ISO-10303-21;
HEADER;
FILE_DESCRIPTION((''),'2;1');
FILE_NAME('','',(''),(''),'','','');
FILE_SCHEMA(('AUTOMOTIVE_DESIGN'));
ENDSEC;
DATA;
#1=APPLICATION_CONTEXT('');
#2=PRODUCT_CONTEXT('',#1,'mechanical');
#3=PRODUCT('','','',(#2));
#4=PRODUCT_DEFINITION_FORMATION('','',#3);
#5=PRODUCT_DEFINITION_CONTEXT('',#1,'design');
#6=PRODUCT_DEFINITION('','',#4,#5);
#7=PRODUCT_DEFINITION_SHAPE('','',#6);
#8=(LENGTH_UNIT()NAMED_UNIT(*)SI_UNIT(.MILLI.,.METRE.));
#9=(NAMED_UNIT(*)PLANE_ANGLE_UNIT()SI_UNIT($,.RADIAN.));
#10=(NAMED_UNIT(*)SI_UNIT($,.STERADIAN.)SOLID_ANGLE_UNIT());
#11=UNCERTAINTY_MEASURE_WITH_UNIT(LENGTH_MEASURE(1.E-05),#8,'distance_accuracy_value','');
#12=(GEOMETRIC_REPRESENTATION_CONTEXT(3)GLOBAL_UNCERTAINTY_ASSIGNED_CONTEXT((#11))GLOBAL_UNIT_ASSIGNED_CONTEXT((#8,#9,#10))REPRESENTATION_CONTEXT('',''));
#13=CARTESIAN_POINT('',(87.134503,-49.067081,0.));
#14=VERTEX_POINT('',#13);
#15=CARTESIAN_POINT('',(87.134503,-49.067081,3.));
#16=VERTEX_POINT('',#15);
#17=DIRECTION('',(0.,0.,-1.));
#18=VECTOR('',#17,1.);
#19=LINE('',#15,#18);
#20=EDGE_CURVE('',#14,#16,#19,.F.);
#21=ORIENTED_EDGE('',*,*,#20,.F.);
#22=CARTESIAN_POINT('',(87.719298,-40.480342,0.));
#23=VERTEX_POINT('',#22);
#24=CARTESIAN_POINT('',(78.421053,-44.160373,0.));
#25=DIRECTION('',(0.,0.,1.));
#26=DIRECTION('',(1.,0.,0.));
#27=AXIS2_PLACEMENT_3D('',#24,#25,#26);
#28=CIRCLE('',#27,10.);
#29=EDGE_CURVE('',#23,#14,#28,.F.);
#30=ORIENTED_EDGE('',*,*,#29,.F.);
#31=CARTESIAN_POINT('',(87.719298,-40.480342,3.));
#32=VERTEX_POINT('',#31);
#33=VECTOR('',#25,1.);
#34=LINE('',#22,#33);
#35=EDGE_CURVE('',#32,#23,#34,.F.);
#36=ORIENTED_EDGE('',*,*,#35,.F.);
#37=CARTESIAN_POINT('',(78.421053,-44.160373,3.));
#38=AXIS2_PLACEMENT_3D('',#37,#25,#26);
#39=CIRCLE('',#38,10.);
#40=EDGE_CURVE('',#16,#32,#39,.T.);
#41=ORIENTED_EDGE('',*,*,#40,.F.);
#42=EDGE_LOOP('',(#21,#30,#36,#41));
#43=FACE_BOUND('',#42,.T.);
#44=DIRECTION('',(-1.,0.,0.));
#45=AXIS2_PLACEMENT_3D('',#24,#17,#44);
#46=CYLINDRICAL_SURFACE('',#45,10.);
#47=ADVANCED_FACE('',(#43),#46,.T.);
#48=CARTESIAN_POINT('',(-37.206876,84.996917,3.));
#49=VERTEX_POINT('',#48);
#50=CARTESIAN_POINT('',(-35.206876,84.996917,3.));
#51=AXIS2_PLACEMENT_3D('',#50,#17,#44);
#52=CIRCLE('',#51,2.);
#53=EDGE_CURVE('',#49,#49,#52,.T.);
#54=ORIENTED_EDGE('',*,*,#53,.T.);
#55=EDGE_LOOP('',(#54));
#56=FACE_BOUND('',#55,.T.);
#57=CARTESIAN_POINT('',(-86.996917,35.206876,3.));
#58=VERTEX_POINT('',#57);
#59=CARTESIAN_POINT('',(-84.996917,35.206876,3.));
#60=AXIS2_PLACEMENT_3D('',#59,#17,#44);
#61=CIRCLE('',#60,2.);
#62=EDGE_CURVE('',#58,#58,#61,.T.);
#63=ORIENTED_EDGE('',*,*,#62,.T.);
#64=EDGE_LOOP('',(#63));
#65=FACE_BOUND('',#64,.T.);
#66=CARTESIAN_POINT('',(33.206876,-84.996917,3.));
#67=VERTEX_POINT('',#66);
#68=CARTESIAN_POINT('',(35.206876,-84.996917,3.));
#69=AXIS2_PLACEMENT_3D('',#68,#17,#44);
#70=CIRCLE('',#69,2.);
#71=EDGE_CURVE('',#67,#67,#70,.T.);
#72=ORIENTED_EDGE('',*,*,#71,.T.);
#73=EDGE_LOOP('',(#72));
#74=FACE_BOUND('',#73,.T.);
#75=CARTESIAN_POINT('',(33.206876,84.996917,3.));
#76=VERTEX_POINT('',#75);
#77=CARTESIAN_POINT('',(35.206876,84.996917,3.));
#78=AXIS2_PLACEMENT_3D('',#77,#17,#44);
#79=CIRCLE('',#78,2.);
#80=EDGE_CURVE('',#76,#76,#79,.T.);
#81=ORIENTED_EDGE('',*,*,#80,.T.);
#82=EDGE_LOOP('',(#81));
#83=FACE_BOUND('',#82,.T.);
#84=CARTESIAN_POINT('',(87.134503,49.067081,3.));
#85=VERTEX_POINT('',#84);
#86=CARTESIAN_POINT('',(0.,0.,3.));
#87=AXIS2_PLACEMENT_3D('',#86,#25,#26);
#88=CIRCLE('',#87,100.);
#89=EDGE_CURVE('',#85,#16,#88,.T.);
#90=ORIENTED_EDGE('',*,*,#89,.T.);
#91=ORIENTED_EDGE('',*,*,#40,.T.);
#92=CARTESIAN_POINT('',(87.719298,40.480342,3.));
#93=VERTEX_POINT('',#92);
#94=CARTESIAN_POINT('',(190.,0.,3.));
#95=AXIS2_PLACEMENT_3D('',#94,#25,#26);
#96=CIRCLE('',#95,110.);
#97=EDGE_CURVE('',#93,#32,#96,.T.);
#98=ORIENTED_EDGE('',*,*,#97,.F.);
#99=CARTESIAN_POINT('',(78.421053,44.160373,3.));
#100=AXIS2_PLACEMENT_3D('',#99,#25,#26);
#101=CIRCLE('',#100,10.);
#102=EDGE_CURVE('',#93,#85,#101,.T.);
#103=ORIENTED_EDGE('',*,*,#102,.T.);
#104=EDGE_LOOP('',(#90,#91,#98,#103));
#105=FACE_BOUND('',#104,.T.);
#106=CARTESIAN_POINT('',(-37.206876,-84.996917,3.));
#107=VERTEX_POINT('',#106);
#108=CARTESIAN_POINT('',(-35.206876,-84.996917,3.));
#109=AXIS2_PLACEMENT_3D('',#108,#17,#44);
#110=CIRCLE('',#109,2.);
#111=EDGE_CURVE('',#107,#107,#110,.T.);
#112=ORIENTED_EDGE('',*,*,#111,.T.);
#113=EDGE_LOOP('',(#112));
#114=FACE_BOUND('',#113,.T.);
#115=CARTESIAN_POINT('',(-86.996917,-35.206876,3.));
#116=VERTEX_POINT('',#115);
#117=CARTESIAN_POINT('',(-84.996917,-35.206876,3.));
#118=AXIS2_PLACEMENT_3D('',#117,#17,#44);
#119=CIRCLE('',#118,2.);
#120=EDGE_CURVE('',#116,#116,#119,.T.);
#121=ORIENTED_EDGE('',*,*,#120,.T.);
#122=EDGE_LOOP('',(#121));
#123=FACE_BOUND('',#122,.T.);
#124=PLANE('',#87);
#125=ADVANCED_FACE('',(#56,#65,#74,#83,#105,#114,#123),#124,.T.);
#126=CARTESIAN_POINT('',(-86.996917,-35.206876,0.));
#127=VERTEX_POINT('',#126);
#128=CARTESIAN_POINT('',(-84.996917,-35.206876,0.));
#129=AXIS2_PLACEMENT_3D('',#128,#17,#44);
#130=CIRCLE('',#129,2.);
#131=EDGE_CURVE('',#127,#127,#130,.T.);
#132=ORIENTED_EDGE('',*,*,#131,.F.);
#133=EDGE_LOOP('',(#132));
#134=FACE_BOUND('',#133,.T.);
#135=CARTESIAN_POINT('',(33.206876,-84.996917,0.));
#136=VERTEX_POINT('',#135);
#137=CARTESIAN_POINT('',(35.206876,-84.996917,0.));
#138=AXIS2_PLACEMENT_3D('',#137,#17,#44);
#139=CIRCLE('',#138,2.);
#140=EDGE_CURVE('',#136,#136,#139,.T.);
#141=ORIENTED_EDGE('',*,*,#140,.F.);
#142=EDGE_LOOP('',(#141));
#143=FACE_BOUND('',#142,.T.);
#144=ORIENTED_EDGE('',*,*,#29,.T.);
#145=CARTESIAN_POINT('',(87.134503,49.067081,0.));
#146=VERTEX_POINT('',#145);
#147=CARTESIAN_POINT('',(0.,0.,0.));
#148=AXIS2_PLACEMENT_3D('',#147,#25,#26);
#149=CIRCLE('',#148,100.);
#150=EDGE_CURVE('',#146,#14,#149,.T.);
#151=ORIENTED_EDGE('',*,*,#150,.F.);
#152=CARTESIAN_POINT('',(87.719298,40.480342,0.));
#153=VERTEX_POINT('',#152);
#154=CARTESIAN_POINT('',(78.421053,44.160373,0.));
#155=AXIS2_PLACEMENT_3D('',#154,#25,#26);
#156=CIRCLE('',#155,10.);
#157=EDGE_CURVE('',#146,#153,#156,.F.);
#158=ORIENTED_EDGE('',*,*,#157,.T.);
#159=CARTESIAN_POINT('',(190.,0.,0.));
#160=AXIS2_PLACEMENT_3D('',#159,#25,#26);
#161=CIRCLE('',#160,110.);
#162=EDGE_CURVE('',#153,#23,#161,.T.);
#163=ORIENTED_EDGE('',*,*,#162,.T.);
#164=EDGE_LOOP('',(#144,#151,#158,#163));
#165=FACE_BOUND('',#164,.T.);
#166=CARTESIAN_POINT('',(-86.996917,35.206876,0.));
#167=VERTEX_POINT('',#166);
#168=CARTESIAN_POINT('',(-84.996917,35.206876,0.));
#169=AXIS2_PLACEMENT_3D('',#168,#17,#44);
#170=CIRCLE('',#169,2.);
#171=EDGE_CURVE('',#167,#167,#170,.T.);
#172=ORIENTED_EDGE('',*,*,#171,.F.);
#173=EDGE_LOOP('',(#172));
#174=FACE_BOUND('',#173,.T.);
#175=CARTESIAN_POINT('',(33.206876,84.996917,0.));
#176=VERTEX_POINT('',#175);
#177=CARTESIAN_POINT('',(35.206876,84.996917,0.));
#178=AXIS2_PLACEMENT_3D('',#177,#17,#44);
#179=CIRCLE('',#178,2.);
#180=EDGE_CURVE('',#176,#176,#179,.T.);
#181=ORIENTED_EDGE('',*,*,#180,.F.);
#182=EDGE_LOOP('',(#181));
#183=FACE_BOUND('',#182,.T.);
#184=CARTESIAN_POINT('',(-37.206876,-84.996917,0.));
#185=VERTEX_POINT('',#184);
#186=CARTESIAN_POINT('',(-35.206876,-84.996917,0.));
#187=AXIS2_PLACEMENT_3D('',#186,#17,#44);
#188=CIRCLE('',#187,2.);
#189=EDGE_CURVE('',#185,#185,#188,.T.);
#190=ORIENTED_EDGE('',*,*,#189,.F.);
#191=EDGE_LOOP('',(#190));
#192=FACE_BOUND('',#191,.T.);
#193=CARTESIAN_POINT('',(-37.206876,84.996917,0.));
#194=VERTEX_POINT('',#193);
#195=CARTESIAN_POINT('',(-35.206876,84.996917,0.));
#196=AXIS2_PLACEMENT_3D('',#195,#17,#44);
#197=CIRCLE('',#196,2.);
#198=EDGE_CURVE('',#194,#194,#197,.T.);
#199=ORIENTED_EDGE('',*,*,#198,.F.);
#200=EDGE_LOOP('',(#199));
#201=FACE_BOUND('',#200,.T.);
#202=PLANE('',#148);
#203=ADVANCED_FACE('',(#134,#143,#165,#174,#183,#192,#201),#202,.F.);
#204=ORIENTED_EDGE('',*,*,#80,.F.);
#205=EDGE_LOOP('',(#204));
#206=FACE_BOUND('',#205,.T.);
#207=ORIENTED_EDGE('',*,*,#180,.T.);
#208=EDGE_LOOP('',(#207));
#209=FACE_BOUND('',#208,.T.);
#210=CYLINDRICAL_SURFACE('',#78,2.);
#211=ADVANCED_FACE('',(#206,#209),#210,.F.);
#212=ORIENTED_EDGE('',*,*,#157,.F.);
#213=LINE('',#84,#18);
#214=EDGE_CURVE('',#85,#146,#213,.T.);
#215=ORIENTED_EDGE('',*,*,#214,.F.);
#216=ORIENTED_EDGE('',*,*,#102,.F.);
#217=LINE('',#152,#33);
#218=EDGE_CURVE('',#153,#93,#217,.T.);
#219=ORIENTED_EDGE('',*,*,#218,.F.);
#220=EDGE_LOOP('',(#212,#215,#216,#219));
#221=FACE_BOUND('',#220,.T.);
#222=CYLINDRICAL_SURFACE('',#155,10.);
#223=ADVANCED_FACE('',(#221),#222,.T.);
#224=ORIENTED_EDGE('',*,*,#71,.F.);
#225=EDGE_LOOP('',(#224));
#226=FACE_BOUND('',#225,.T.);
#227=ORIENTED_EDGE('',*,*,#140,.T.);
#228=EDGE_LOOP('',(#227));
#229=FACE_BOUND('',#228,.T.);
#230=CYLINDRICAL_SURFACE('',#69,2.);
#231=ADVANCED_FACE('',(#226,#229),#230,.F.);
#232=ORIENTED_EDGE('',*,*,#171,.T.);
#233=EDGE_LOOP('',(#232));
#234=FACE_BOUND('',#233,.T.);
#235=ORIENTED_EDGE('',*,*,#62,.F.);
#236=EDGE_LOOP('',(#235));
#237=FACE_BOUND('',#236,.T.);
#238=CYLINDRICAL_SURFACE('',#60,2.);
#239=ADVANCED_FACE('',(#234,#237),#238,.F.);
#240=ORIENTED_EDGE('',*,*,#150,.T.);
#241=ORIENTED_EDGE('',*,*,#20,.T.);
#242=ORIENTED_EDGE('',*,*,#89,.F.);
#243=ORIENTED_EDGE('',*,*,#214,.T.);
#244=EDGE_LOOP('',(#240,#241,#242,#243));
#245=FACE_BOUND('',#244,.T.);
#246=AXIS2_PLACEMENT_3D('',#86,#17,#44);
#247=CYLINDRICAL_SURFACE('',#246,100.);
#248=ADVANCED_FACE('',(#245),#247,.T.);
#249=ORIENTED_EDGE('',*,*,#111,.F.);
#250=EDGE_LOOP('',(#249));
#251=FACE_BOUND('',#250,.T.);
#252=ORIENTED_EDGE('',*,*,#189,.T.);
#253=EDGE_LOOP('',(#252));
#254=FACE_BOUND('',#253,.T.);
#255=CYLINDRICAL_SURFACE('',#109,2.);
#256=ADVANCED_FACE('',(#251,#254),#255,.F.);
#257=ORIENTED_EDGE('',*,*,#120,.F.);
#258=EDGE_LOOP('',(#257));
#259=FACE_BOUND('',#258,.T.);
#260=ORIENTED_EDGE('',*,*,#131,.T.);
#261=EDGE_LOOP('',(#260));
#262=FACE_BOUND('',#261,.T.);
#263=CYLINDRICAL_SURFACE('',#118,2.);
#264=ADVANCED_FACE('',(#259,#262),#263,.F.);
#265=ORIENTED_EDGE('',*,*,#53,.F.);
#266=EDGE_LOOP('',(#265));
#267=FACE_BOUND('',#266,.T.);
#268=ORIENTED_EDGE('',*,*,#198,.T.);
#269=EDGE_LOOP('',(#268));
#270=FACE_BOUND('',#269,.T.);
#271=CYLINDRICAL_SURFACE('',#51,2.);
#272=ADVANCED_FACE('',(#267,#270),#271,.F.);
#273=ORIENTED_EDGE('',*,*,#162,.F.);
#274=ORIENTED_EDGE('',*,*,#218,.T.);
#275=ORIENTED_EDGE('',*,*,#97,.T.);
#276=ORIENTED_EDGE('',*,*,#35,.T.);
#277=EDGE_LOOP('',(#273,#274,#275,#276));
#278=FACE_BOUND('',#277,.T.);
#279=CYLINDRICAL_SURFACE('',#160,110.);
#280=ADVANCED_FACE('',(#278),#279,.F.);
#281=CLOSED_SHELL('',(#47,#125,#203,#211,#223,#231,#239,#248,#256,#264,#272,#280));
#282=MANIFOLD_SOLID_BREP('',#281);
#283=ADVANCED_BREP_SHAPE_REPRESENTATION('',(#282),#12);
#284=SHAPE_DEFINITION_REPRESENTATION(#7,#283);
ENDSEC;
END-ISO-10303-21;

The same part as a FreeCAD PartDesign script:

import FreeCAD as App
import Part
import Sketcher
from FreeCAD import Vector


def edges_at(feature, points):
    """Names of the edges that pass closest to the given points."""
    edges = feature.Shape.Edges
    near = lambda p: min(range(len(edges)), key=lambda i: edges[i].distToShape(Part.Vertex(*p))[0])
    return sorted({f"Edge{near(p) + 1}" for p in points})

doc = App.newDocument("Part")
body = doc.addObject("PartDesign::Body", "Body")

sketch1 = body.newObject("Sketcher::SketchObject", "Sketch")
sketch1.AttachmentSupport = (doc.getObject("XY_Plane"), [""])
sketch1.MapMode = "FlatFace"
sketch1.addGeometry(Part.Circle(Vector(0, 0, 0), Vector(0, 0, 1), 100), False)
sketch1.addConstraint(Sketcher.Constraint("Coincident", 0, 3, -1, 1))
sketch1.addConstraint(Sketcher.Constraint("Diameter", 0, 200.0))
pad1 = body.newObject("PartDesign::Pad", "Pad")
pad1.Profile = sketch1
pad1.Length = 3

sketch2 = body.newObject("Sketcher::SketchObject", "Sketch001")
sketch2.AttachmentSupport = (doc.getObject("XY_Plane"), [""])
sketch2.MapMode = "FlatFace"
sketch2.AttachmentOffset = App.Placement(Vector(0, 0, 3), App.Rotation())
sketch2.addGeometry(Part.Circle(Vector(190, 0, 0), Vector(0, 0, 1), 110), False)
sketch2.addConstraint(Sketcher.Constraint("PointOnObject", 0, 3, -1))
sketch2.addConstraint(Sketcher.Constraint("Diameter", 0, 220.0))
sketch2.addConstraint(Sketcher.Constraint("DistanceX", -1, 1, 0, 3, 190.0))
pocket1 = body.newObject("PartDesign::Pocket", "Pocket")
pocket1.Profile = sketch2
pocket1.Length = 3
doc.recompute()

fillet = body.newObject("PartDesign::Fillet", "Fillet")
fillet.Base = (pocket1, edges_at(pocket1, [(89.474, -44.659, 1.5), (89.474, 44.659, 1.5)]))
fillet.Radius = 10

sketch3 = body.newObject("Sketcher::SketchObject", "Sketch002")
sketch3.AttachmentSupport = (doc.getObject("XY_Plane"), [""])
sketch3.MapMode = "FlatFace"
sketch3.addGeometry(Part.Circle(Vector(35.2, 85, 0), Vector(0, 0, 1), 2), False)
sketch3.addGeometry(Part.Circle(Vector(-35.2, 85, 0), Vector(0, 0, 1), 2), False)
sketch3.addGeometry(Part.Circle(Vector(-85, 35.2, 0), Vector(0, 0, 1), 2), False)
sketch3.addGeometry(Part.Circle(Vector(-85, -35.2, 0), Vector(0, 0, 1), 2), False)
sketch3.addGeometry(Part.Circle(Vector(-35.2, -85, 0), Vector(0, 0, 1), 2), False)
sketch3.addGeometry(Part.Circle(Vector(35.2, -85, 0), Vector(0, 0, 1), 2), False)
sketch3.addConstraint(Sketcher.Constraint("Equal", 0, 1))
sketch3.addConstraint(Sketcher.Constraint("Equal", 1, 2))
sketch3.addConstraint(Sketcher.Constraint("Equal", 2, 3))
sketch3.addConstraint(Sketcher.Constraint("Equal", 3, 4))
sketch3.addConstraint(Sketcher.Constraint("Equal", 4, 5))
sketch3.addConstraint(Sketcher.Constraint("Symmetric", 0, 3, 4, 3, -1, 1))
sketch3.addConstraint(Sketcher.Constraint("Symmetric", 1, 3, 5, 3, -1, 1))
sketch3.addConstraint(Sketcher.Constraint("Symmetric", 0, 3, 1, 3, -2))
sketch3.addConstraint(Sketcher.Constraint("Symmetric", 2, 3, 3, 3, -1))
sketch3.addConstraint(Sketcher.Constraint("Diameter", 0, 4.0))
sketch3.addConstraint(Sketcher.Constraint("DistanceX", 1, 3, 0, 3, 70.413752))
sketch3.addConstraint(Sketcher.Constraint("DistanceX", 2, 3, 1, 3, 49.790041))
sketch3.addConstraint(Sketcher.Constraint("DistanceY", 2, 3, 1, 3, 49.790041))
sketch3.addConstraint(Sketcher.Constraint("DistanceY", 3, 3, 2, 3, 70.413752))
pocket2 = body.newObject("PartDesign::Pocket", "Pocket001")
pocket2.Profile = sketch3
pocket2.Type = "ThroughAll"
pocket2.Reversed = True

doc.recompute()
